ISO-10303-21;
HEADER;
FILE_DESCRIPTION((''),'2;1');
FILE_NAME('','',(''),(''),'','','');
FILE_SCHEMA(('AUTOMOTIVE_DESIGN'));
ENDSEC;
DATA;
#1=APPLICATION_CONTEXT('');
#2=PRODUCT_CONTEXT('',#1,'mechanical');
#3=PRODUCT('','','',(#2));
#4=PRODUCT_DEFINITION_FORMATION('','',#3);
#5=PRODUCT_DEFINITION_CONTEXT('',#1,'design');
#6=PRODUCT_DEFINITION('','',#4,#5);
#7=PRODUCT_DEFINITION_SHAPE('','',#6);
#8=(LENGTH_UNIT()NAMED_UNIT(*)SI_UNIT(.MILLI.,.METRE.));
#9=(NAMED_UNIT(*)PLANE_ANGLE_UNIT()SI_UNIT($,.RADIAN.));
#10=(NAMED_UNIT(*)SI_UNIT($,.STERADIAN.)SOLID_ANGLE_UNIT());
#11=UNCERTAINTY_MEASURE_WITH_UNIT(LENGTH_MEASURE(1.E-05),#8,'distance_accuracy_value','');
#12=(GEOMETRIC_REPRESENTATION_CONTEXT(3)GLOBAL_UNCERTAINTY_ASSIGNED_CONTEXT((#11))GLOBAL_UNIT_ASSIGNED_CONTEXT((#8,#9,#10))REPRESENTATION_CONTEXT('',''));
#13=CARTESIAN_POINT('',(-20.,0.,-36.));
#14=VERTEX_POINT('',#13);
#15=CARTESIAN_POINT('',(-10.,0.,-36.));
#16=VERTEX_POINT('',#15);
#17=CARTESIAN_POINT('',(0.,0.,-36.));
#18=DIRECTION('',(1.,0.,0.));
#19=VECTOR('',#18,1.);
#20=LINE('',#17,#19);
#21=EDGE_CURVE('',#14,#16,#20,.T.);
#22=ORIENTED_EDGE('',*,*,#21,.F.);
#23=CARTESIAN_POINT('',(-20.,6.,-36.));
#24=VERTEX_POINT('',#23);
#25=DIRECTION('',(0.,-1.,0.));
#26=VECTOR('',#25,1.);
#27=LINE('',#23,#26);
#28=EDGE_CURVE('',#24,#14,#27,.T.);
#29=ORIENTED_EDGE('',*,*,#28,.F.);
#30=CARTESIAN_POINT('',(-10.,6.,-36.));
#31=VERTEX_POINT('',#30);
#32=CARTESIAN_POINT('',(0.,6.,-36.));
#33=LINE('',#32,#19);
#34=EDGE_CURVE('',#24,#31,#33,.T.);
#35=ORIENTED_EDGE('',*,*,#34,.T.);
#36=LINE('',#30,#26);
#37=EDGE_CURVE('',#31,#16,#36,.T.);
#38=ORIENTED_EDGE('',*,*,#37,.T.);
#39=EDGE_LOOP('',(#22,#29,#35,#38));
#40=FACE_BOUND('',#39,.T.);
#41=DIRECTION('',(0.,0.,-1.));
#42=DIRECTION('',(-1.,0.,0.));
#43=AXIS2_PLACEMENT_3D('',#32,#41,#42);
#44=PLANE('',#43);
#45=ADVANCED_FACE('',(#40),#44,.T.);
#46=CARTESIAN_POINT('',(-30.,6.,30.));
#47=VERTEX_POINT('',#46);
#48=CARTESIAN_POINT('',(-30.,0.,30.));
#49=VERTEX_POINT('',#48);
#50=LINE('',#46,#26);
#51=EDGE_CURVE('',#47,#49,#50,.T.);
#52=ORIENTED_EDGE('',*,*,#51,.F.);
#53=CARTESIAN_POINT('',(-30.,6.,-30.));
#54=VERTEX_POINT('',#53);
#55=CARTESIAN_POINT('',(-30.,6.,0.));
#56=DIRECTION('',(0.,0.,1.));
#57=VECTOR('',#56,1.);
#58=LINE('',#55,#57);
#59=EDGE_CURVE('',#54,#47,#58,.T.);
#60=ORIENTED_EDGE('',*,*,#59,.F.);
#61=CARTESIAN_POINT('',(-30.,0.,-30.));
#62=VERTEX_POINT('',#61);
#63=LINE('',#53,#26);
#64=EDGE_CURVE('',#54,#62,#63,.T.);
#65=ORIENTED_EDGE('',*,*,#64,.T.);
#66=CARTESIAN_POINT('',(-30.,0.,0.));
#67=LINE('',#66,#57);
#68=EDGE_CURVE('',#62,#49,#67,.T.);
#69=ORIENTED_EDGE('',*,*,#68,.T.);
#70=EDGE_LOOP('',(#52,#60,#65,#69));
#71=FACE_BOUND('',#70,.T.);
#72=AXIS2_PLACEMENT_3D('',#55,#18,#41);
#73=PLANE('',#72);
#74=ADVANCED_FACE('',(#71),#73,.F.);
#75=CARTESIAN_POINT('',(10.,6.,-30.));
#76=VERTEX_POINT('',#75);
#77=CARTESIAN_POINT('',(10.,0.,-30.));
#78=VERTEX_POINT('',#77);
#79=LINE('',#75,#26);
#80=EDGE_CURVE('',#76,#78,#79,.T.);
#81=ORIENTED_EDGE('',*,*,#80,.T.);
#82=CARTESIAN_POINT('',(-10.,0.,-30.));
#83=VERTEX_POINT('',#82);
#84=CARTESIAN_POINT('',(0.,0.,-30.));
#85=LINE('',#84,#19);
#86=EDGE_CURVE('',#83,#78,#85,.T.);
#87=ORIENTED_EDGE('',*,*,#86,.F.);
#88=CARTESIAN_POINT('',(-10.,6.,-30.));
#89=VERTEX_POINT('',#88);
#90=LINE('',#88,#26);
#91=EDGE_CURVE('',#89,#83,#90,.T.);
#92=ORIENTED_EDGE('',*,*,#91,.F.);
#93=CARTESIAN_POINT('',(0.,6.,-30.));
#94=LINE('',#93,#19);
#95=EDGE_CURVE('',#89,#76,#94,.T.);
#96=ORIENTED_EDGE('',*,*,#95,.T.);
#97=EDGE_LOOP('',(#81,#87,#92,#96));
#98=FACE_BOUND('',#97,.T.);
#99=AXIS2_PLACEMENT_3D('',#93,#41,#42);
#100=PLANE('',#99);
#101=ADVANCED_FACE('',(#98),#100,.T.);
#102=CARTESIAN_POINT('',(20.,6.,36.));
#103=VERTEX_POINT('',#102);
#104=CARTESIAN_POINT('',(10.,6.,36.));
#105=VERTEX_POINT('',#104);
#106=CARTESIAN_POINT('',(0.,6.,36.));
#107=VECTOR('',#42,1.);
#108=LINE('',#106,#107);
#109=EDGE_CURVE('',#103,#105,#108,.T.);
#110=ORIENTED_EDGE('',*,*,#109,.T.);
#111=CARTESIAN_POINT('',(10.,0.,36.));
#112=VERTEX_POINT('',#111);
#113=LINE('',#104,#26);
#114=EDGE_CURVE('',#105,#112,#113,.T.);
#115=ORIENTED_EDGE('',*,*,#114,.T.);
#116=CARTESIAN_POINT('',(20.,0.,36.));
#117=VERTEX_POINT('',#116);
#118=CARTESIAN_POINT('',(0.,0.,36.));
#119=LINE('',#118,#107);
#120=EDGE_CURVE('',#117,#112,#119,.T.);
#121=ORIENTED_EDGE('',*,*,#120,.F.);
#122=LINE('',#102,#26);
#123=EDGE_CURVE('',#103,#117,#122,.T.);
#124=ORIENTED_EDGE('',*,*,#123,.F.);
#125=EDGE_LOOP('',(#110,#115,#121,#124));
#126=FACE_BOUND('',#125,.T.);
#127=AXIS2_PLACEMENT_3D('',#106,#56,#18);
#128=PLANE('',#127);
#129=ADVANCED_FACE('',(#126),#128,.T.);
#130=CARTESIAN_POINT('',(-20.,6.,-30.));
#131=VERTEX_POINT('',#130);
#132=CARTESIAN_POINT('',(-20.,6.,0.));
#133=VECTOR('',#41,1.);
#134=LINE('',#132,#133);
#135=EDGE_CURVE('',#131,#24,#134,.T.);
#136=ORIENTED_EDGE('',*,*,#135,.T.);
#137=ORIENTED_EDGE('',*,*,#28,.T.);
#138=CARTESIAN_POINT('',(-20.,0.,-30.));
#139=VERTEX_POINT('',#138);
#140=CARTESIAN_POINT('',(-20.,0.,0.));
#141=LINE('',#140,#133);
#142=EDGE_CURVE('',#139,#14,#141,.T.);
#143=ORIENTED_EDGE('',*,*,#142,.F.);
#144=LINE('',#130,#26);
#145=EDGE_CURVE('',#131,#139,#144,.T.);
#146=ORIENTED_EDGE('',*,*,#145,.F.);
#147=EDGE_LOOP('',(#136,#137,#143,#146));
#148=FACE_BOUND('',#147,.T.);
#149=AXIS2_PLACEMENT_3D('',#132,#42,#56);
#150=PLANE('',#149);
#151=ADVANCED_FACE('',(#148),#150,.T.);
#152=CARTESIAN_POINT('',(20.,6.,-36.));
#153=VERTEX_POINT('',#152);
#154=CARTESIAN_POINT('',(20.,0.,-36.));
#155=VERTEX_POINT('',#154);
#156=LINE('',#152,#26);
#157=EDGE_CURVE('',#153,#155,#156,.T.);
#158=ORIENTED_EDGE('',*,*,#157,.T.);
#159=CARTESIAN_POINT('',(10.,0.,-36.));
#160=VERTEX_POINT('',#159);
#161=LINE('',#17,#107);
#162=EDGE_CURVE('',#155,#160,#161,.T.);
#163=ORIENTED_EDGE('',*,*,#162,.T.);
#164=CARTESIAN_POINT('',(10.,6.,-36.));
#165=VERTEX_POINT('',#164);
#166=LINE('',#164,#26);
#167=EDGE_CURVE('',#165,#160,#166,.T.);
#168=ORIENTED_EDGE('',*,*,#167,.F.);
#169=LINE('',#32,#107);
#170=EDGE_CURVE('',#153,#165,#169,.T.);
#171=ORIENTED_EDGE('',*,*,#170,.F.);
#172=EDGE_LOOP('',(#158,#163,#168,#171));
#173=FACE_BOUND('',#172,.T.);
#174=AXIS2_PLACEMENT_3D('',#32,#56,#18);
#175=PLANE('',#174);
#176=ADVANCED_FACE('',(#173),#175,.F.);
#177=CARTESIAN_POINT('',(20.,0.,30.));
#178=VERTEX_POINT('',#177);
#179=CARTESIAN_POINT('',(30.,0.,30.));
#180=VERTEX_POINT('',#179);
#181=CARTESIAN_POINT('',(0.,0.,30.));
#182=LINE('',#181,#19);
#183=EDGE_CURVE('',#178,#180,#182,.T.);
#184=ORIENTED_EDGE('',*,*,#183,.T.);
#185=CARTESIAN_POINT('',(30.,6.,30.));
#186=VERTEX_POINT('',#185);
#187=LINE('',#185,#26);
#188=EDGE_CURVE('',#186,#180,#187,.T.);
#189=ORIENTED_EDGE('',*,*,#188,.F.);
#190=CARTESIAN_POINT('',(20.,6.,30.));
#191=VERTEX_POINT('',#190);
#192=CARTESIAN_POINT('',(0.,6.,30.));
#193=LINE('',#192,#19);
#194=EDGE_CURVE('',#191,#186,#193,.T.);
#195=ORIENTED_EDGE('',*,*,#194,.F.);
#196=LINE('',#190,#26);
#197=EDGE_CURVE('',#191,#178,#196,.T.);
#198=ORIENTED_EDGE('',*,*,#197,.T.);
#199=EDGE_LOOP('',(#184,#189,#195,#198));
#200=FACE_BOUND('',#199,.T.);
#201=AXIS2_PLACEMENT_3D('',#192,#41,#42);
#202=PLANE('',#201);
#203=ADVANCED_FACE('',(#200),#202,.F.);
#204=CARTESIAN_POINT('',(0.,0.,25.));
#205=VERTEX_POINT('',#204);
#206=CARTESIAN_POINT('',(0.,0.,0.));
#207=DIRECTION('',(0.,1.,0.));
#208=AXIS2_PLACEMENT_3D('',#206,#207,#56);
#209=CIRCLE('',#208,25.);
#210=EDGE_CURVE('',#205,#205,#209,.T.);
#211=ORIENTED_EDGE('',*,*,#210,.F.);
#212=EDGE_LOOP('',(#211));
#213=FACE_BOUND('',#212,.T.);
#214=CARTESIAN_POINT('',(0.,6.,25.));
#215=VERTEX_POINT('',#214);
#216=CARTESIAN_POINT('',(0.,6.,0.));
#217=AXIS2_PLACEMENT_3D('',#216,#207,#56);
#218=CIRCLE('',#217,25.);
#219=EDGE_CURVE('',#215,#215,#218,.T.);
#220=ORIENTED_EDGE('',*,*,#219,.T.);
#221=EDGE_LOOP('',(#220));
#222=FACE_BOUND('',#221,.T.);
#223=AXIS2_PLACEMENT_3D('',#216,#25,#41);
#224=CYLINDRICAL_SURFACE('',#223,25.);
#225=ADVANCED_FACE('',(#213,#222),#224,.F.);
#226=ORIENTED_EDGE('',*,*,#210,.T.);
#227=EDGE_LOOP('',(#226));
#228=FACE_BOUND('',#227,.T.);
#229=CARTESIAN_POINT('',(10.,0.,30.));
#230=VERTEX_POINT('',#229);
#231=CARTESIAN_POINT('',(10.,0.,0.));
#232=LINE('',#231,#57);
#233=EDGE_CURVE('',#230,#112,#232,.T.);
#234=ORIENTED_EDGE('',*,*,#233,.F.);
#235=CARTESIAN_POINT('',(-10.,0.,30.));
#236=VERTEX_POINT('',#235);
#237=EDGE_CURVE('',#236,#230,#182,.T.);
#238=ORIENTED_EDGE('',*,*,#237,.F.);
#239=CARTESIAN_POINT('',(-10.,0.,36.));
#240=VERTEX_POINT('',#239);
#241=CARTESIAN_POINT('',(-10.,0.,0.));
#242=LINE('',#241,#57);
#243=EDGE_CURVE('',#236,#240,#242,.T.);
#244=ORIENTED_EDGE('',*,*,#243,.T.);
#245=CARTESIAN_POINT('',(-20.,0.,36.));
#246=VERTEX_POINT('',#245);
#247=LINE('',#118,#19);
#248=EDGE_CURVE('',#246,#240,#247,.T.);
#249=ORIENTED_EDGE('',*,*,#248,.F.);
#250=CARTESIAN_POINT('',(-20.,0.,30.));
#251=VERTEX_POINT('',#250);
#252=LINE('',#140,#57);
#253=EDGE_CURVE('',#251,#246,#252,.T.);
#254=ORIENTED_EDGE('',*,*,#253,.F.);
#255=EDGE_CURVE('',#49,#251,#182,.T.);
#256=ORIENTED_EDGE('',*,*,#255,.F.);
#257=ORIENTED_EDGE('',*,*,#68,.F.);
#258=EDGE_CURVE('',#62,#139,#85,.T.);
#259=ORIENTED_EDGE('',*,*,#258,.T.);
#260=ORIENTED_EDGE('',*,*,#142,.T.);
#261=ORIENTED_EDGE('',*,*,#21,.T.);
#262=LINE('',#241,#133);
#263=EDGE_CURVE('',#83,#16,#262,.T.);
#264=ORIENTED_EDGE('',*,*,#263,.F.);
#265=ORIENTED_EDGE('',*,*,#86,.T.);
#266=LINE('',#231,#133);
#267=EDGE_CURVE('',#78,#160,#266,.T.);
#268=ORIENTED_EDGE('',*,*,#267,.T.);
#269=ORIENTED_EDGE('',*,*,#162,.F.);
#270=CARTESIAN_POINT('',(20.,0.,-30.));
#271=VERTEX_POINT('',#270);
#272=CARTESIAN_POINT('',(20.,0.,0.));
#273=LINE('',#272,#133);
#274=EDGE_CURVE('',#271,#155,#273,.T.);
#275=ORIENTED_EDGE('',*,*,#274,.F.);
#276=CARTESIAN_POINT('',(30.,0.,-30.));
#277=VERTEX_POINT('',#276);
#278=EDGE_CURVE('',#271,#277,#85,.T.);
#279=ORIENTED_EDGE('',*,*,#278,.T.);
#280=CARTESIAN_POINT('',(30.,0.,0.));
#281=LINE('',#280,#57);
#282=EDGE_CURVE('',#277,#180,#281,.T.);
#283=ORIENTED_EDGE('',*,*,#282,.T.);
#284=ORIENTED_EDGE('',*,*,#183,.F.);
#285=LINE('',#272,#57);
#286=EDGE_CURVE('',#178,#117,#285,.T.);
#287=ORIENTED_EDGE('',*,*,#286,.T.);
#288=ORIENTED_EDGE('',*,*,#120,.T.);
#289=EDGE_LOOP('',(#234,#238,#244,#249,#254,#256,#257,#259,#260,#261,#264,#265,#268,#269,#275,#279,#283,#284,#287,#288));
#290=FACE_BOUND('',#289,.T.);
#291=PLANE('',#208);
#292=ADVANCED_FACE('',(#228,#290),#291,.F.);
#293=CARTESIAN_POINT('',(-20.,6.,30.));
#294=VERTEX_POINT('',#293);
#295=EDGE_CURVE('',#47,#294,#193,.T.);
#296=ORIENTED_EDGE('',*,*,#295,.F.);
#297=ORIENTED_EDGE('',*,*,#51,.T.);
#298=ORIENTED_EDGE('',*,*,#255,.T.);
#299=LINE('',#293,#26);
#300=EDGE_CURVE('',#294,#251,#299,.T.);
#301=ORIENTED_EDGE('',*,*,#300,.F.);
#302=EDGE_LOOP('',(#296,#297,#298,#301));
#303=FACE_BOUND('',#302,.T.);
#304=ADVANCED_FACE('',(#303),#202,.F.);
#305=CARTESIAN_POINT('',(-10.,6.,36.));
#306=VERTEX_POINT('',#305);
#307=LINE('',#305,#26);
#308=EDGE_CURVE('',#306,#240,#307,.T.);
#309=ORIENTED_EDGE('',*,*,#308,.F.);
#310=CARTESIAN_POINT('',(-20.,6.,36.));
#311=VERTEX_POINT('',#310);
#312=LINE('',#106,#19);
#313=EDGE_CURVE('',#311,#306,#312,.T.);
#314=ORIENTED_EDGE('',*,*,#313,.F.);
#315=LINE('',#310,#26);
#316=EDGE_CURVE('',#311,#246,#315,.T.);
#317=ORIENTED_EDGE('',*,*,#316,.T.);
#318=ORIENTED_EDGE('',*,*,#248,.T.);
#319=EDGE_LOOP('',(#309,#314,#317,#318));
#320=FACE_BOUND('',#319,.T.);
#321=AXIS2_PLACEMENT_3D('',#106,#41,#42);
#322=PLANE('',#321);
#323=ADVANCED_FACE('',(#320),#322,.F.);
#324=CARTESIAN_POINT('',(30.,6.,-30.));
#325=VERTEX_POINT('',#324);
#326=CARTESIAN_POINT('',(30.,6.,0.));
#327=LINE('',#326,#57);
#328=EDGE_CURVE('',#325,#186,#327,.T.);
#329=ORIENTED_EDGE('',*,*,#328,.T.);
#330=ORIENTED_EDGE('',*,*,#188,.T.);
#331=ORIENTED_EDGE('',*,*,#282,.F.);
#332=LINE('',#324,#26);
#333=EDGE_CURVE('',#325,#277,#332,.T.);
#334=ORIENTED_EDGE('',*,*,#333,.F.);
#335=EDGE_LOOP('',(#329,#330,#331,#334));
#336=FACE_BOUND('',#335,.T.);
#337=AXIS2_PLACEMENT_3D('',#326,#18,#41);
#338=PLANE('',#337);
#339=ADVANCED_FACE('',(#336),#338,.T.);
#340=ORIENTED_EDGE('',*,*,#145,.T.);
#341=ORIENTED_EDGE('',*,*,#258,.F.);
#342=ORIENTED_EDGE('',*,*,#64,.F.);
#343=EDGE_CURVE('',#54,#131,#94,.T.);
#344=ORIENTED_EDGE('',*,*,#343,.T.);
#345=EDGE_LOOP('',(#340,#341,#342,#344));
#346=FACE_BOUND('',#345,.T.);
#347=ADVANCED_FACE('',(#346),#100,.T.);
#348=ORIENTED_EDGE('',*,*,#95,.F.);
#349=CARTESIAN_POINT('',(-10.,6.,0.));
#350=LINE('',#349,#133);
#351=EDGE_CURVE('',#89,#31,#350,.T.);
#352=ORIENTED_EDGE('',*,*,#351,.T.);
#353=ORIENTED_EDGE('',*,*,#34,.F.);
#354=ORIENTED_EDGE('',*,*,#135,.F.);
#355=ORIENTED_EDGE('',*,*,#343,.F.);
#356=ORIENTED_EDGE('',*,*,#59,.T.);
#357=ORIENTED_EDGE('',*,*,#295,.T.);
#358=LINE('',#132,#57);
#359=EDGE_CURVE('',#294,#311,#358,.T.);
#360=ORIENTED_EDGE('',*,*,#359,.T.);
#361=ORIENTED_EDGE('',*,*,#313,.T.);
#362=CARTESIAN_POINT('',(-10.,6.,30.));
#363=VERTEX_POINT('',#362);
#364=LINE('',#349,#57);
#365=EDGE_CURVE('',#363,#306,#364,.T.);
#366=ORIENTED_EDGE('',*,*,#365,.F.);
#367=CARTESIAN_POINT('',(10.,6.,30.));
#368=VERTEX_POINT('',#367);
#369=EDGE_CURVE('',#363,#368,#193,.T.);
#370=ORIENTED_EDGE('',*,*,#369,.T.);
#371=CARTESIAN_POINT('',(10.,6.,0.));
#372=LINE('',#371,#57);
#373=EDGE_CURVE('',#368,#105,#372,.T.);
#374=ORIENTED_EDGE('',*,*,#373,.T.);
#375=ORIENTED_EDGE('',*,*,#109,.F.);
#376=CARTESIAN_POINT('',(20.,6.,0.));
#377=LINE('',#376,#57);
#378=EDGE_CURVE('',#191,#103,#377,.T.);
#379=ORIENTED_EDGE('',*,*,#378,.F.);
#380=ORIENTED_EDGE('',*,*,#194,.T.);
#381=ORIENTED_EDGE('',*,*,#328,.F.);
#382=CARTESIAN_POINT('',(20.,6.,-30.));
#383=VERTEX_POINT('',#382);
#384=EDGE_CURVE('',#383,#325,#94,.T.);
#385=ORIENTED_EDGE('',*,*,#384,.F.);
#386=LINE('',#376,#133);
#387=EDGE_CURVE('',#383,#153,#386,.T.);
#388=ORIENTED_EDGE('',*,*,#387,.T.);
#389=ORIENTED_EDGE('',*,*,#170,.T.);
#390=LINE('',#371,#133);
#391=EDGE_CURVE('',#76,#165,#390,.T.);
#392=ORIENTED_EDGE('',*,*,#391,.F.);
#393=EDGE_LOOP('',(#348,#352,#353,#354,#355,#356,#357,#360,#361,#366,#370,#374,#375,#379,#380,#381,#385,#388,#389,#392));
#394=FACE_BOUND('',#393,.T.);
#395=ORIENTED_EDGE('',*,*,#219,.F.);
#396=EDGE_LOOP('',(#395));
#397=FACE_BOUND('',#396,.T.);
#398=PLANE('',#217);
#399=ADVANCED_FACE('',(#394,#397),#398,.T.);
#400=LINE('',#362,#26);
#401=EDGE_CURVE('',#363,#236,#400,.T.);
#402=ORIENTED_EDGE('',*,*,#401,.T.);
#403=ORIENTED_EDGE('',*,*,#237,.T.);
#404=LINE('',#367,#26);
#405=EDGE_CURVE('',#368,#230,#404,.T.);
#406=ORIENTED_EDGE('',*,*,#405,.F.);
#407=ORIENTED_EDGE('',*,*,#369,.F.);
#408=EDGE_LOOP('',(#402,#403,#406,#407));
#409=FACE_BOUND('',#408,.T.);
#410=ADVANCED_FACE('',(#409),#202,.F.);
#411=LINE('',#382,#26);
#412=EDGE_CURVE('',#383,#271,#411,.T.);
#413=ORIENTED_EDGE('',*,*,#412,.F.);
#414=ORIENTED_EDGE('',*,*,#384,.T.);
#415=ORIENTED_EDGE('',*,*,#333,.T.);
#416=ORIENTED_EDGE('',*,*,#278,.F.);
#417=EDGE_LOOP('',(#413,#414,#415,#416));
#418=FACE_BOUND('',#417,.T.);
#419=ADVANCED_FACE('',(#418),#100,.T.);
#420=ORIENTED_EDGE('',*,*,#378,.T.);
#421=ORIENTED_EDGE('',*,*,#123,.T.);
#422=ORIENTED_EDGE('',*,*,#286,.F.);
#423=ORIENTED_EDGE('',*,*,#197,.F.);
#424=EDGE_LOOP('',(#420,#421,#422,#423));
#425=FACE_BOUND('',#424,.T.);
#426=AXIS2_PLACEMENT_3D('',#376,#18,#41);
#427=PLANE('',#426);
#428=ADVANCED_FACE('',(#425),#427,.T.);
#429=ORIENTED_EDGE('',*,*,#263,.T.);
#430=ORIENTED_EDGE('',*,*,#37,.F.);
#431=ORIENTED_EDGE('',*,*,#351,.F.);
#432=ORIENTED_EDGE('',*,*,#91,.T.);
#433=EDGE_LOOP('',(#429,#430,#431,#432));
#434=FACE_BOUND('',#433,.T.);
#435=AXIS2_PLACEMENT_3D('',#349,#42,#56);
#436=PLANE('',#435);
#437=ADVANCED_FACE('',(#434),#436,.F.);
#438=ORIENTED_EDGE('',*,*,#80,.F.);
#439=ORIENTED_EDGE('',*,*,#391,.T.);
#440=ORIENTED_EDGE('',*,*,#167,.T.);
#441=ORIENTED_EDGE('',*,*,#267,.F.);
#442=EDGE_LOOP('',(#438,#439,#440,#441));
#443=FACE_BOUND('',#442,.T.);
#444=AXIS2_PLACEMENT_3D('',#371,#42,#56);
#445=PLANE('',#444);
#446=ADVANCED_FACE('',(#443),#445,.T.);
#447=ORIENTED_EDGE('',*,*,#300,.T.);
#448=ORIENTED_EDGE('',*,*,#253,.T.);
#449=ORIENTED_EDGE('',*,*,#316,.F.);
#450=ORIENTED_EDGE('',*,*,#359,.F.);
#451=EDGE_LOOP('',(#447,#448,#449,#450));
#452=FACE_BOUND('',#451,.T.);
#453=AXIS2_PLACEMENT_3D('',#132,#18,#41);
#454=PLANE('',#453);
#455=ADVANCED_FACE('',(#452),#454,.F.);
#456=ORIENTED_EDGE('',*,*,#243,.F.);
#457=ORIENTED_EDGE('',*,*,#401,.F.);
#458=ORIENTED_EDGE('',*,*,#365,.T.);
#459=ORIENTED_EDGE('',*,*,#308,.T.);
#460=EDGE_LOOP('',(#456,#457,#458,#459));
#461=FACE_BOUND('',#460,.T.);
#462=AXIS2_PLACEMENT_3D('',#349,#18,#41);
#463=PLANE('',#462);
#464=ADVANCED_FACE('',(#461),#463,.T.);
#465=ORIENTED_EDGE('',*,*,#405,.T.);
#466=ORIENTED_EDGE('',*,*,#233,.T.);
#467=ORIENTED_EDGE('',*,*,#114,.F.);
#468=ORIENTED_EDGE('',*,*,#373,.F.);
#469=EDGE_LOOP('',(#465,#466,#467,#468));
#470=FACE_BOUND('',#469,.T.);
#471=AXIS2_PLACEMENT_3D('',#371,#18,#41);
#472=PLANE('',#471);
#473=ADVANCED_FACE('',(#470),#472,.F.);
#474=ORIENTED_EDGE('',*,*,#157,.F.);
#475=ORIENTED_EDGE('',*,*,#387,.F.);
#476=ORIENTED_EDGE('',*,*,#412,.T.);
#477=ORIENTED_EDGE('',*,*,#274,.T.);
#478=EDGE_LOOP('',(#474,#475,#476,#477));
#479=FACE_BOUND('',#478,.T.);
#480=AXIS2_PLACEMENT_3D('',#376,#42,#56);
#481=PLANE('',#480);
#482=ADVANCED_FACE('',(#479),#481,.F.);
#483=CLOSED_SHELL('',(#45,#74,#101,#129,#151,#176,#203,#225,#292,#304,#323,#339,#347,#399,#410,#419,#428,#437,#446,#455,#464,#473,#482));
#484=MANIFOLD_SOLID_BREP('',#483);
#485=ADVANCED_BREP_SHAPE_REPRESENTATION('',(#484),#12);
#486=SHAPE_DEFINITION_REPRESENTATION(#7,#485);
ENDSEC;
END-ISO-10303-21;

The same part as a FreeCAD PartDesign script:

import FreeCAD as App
import Part
import Sketcher

V = App.Vector


def add_polygon(sketch, points):
    """Adds a closed chain of lines whose ends are joined by coincident constraints."""
    first, n = sketch.GeometryCount, len(points)
    for a, b in zip(points, points[1:] + points[:1]):
        sketch.addGeometry(Part.LineSegment(App.Vector(*a, 0), App.Vector(*b, 0)), False)
    for i in range(n):
        sketch.addConstraint(Sketcher.Constraint("Coincident", first + i, 2, first + (i + 1) % n, 1))

doc = App.newDocument("Part")
body = doc.addObject("PartDesign::Body", "Body")

# Sketch on XZ plane
sketch1 = doc.addObject("Sketcher::SketchObject", "Sketch")
body.addObject(sketch1)
sketch1.AttachmentSupport = (doc.XZ_Plane, [""])
sketch1.MapMode = "FlatFace"
add_polygon(sketch1, [(-20, -30), (-30, -30), (-30, 30), (-20, 30), (-20, 36), (-10, 36), (-10, 30), (10, 30), (10, 36), (20, 36), (20, 30), (30, 30), (30, -30), (20, -30), (20, -36), (10, -36), (10, -30), (-10, -30), (-10, -36), (-20, -36)])  # lines 0-19
sketch1.addGeometry(Part.Circle(V(0, 0, 0), V(0, 0, 1), 25), False)  # 20
sketch1.addConstraint(Sketcher.Constraint("Horizontal", 0))
sketch1.addConstraint(Sketcher.Constraint("Vertical", 1))
sketch1.addConstraint(Sketcher.Constraint("Horizontal", 2))
sketch1.addConstraint(Sketcher.Constraint("Vertical", 3))
sketch1.addConstraint(Sketcher.Constraint("Horizontal", 4))
sketch1.addConstraint(Sketcher.Constraint("Vertical", 5))
sketch1.addConstraint(Sketcher.Constraint("Horizontal", 6))
sketch1.addConstraint(Sketcher.Constraint("Vertical", 7))
sketch1.addConstraint(Sketcher.Constraint("Horizontal", 8))
sketch1.addConstraint(Sketcher.Constraint("Vertical", 9))
sketch1.addConstraint(Sketcher.Constraint("Horizontal", 10))
sketch1.addConstraint(Sketcher.Constraint("Vertical", 11))
sketch1.addConstraint(Sketcher.Constraint("Horizontal", 12))
sketch1.addConstraint(Sketcher.Constraint("Vertical", 13))
sketch1.addConstraint(Sketcher.Constraint("Horizontal", 14))
sketch1.addConstraint(Sketcher.Constraint("Vertical", 15))
sketch1.addConstraint(Sketcher.Constraint("Horizontal", 16))
sketch1.addConstraint(Sketcher.Constraint("Vertical", 17))
sketch1.addConstraint(Sketcher.Constraint("Horizontal", 18))
sketch1.addConstraint(Sketcher.Constraint("Vertical", 19))
sketch1.addConstraint(Sketcher.Constraint("Coincident", 20, 3, -1, 1))
sketch1.addConstraint(Sketcher.Constraint("Symmetric", 0, 2, 10, 2, -1, 1))
sketch1.addConstraint(Sketcher.Constraint("Symmetric", 2, 2, 12, 2, -1, 1))
sketch1.addConstraint(Sketcher.Constraint("Symmetric", 4, 2, 14, 2, -1, 1))
sketch1.addConstraint(Sketcher.Constraint("Symmetric", 6, 2, 16, 2, -1, 1))
sketch1.addConstraint(Sketcher.Constraint("Symmetric", 8, 2, 18, 2, -1, 1))
sketch1.addConstraint(Sketcher.Constraint("Symmetric", 4, 2, 7, 2, -2))
sketch1.addConstraint(Sketcher.Constraint("Symmetric", 2, 2, 9, 2, -2))
sketch1.addConstraint(Sketcher.Constraint("Horizontal", 2, 2, 5, 2))
sketch1.addConstraint(Sketcher.Constraint("Equal", 2, 4))
sketch1.addConstraint(Sketcher.Constraint("Diameter", 20, 50.0))
sketch1.addConstraint(Sketcher.Constraint("DistanceX", 0, 2, 0, 1, 10.0))
sketch1.addConstraint(Sketcher.Constraint("DistanceX", 6, 1, 6, 2, 20.0))
sketch1.addConstraint(Sketcher.Constraint("DistanceY", 1, 1, 1, 2, 60.0))
sketch1.addConstraint(Sketcher.Constraint("DistanceY", 3, 1, 3, 2, 6.0))
pad1 = doc.addObject("PartDesign::Pad", "Pad")
body.addObject(pad1)
pad1.Profile = sketch1
pad1.Length = 6
pad1.Reversed = True

doc.recompute()
